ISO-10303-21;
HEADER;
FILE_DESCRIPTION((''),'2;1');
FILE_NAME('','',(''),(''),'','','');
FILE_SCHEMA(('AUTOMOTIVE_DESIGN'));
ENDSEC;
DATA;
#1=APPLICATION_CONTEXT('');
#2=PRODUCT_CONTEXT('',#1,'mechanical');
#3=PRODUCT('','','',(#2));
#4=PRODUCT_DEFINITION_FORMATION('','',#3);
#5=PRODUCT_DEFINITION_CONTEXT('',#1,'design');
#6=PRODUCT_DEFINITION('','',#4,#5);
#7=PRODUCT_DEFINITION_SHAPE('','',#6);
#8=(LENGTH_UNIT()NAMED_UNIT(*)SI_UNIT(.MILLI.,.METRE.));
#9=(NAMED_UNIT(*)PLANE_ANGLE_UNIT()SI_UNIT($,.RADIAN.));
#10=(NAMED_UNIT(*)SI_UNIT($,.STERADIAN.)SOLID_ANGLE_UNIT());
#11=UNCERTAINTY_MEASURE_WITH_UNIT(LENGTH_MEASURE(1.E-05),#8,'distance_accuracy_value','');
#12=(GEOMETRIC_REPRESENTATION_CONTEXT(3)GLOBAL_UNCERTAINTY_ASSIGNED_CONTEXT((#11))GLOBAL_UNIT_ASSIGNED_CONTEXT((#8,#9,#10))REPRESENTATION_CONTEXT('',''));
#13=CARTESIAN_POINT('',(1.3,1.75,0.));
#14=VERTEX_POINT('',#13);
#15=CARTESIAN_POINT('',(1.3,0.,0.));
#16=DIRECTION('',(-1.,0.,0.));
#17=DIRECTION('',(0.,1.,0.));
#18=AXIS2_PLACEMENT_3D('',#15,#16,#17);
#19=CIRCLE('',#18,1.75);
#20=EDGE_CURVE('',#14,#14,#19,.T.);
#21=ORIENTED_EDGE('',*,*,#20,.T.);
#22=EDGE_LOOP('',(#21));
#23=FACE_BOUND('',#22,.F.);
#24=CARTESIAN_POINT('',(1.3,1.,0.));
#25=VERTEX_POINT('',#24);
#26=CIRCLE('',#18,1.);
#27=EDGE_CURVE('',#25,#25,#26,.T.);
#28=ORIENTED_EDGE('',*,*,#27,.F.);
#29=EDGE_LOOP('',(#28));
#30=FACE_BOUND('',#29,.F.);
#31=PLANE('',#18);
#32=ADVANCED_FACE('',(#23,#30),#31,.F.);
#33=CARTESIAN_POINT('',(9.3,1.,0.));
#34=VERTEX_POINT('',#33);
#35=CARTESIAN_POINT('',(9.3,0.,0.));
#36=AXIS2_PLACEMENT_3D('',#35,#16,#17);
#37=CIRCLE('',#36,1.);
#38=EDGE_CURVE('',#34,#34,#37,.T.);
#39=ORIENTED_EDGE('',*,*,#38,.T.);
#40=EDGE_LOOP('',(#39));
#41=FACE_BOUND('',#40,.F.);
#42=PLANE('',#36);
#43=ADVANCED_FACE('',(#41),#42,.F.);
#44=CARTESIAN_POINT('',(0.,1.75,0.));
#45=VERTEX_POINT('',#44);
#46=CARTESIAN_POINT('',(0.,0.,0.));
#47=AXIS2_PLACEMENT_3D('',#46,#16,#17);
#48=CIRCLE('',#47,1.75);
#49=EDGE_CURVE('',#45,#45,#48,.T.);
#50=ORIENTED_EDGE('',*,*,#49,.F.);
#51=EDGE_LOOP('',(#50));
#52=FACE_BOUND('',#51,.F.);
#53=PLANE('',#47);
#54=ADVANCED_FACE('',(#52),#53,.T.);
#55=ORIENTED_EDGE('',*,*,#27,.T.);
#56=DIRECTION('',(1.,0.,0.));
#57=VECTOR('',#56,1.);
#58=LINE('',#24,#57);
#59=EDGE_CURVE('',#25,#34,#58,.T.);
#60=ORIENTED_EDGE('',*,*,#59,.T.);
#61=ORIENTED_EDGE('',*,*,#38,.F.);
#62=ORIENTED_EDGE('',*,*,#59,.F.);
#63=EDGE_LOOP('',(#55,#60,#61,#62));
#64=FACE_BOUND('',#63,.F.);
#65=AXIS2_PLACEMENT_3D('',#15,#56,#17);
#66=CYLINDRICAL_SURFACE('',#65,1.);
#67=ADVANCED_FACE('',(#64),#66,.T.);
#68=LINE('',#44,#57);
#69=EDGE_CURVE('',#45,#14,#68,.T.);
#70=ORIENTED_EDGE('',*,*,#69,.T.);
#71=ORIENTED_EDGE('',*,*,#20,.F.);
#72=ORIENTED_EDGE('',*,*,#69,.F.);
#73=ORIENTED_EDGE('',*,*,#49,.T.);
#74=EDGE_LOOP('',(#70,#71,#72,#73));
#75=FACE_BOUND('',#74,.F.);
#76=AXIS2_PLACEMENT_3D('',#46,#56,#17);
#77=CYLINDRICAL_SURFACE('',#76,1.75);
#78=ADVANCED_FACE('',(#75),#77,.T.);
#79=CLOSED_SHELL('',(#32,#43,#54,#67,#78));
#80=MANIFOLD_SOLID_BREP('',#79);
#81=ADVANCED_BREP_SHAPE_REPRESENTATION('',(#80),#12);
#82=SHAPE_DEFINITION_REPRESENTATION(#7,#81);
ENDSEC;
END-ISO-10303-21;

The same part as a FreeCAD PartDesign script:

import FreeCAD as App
import Part
import Sketcher

doc = App.newDocument("Part")
params = doc.addObject("Spreadsheet::Sheet", "Params")
for row, (alias, value) in enumerate([
    ("sketch1_width", "8 mm"),
    ("sketch1_height", "1 mm"),
    ("sketch1_width2", "1.3 mm"),
    ("sketch1_height2", "1.75 mm"),
    ("revolution_angle", "360 deg"),
], start=1):
    params.set(f"A{row}", alias)
    params.set(f"B{row}", "=" + value)
    params.setAlias(f"B{row}", alias)

body = doc.addObject("PartDesign::Body", "Body")

sketch1 = doc.addObject("Sketcher::SketchObject", "Sketch")
body.addObject(sketch1)
sketch1.AttachmentSupport = (doc.XY_Plane, [""])
sketch1.MapMode = "FlatFace"
sketch1.addGeometry([
    Part.LineSegment(App.Vector(0, 1.75, 0), App.Vector(0, 0, 0)),
    Part.LineSegment(App.Vector(0, 0, 0), App.Vector(9.3, 0, 0)),
    Part.LineSegment(App.Vector(9.3, 0, 0), App.Vector(9.3, 1, 0)),
    Part.LineSegment(App.Vector(9.3, 1, 0), App.Vector(1.3, 1, 0)),
    Part.LineSegment(App.Vector(1.3, 1, 0), App.Vector(1.3, 1.75, 0)),
    Part.LineSegment(App.Vector(1.3, 1.75, 0), App.Vector(0, 1.75, 0)),
], False)
sketch1.addConstraint([
    Sketcher.Constraint("Coincident", 0, 2, 1, 1),
    Sketcher.Constraint("Coincident", 1, 2, 2, 1),
    Sketcher.Constraint("Coincident", 2, 2, 3, 1),
    Sketcher.Constraint("Coincident", 3, 2, 4, 1),
    Sketcher.Constraint("Coincident", 4, 2, 5, 1),
    Sketcher.Constraint("Coincident", 5, 2, 0, 1),
    Sketcher.Constraint("Vertical", 0),
    Sketcher.Constraint("Horizontal", 1),
    Sketcher.Constraint("Vertical", 2),
    Sketcher.Constraint("Horizontal", 3),
    Sketcher.Constraint("Vertical", 4),
    Sketcher.Constraint("Horizontal", 5),
    Sketcher.Constraint("Coincident", 0, 2, -1, 1),
    Sketcher.Constraint("DistanceX", 3, 2, 3, 1, 8.0),
    Sketcher.Constraint("DistanceY", 2, 1, 2, 2, 1.0),
    Sketcher.Constraint("DistanceX", 5, 2, 5, 1, 1.3),
    Sketcher.Constraint("DistanceY", 0, 2, 0, 1, 1.75),
])
sketch1.setExpression("Constraints[13]", "Params.sketch1_width")
sketch1.setExpression("Constraints[14]", "Params.sketch1_height")
sketch1.setExpression("Constraints[15]", "Params.sketch1_width2")
sketch1.setExpression("Constraints[16]", "Params.sketch1_height2")
revolution = doc.addObject("PartDesign::Revolution", "Revolution")
body.addObject(revolution)
revolution.Profile = sketch1
revolution.ReferenceAxis = (sketch1, ["H_Axis"])
revolution.setExpression("Angle", "Params.revolution_angle")

doc.recompute()
